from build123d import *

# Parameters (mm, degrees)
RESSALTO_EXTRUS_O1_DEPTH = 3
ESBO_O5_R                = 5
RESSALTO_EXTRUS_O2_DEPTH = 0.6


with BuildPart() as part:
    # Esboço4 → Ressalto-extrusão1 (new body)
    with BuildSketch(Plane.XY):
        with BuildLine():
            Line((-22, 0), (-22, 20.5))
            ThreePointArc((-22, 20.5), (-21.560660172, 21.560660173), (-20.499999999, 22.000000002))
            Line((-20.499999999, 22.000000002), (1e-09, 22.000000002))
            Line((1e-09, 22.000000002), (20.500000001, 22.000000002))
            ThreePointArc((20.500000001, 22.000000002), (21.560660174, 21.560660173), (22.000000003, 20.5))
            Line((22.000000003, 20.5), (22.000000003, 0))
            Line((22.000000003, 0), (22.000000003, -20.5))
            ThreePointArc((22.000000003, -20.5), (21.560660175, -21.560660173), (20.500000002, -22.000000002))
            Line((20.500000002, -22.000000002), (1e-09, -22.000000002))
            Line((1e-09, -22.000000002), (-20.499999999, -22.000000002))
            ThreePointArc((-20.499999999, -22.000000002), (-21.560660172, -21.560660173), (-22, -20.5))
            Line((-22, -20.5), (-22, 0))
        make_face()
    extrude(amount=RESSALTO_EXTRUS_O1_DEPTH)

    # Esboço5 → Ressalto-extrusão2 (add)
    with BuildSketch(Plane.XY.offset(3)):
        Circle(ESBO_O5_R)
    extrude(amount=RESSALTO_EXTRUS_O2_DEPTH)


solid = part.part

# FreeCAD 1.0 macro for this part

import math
import FreeCAD as App
import Part
import Sketcher

V = App.Vector
Q = App.Units.Quantity

doc = App.newDocument("Part")
body = doc.addObject("PartDesign::Body", "Body")

# Sketch on XY plane
sketch1 = body.newObject("Sketcher::SketchObject", "Sketch")
sketch1.AttachmentSupport = (doc.getObject("XY_Plane"), [""])
sketch1.MapMode = "FlatFace"
sketch1.addGeometry([
    Part.ArcOfCircle(Part.Circle(V(-20.5, 20.5, 0), V(0, 0, 1), 1.5), math.radians(90), math.radians(180)),  # 0
    Part.LineSegment(V(-22, 20.5, 0), V(-22, -20.5, 0)),  # 1
    Part.ArcOfCircle(Part.Circle(V(-20.5, -20.5, 0), V(0, 0, 1), 1.5), math.radians(180), math.radians(270)),  # 2
    Part.LineSegment(V(-20.5, -22, 0), V(20.5, -22, 0)),  # 3
    Part.ArcOfCircle(Part.Circle(V(20.5, -20.5, 0), V(0, 0, 1), 1.5), math.radians(-90), math.radians(0)),  # 4
    Part.LineSegment(V(22, -20.5, 0), V(22, 20.5, 0)),  # 5
    Part.ArcOfCircle(Part.Circle(V(20.5, 20.5, 0), V(0, 0, 1), 1.5), math.radians(0), math.radians(90)),  # 6
    Part.LineSegment(V(20.5, 22, 0), V(-20.5, 22, 0)),  # 7
], False)
sketch1.addConstraint([
    Sketcher.Constraint("Tangent", 0, 2, 1, 1),
    Sketcher.Constraint("Tangent", 1, 2, 2, 1),
    Sketcher.Constraint("Tangent", 2, 2, 3, 1),
    Sketcher.Constraint("Tangent", 3, 2, 4, 1),
    Sketcher.Constraint("Tangent", 4, 2, 5, 1),
    Sketcher.Constraint("Tangent", 5, 2, 6, 1),
    Sketcher.Constraint("Tangent", 6, 2, 7, 1),
    Sketcher.Constraint("Tangent", 7, 2, 0, 1),
    Sketcher.Constraint("Vertical", 1),
    Sketcher.Constraint("Horizontal", 3),
    Sketcher.Constraint("Vertical", 5),
    Sketcher.Constraint("Horizontal", 7),
    Sketcher.Constraint("Equal", 0, 2),
    Sketcher.Constraint("Equal", 2, 4),
    Sketcher.Constraint("Equal", 4, 6),
    Sketcher.Constraint("Symmetric", 0, 3, 4, 3, -1, 1),
    Sketcher.Constraint("Equal", 7, 1),
    Sketcher.Constraint("Radius", 0, Q("1.5 mm")),
    Sketcher.Constraint("DistanceX", 3, 1, 3, 2, Q("41 mm")),
])
pad1 = body.newObject("PartDesign::Pad", "Pad")
pad1.Profile = sketch1
pad1.Length = 3

# Sketch on XY plane
sketch2 = body.newObject("Sketcher::SketchObject", "Sketch001")
sketch2.AttachmentSupport = (doc.getObject("XY_Plane"), [""])
sketch2.MapMode = "FlatFace"
sketch2.AttachmentOffset = App.Placement(V(0, 0, 3), App.Rotation())
sketch2.addGeometry(Part.Circle(V(0, 0, 0), V(0, 0, 1), 5), False)
sketch2.addConstraint([
    Sketcher.Constraint("Coincident", 0, 3, -1, 1),
    Sketcher.Constraint("Diameter", 0, Q("10 mm")),
])
pad2 = body.newObject("PartDesign::Pad", "Pad001")
pad2.Profile = sketch2
pad2.Length = 0.6

doc.recompute()
